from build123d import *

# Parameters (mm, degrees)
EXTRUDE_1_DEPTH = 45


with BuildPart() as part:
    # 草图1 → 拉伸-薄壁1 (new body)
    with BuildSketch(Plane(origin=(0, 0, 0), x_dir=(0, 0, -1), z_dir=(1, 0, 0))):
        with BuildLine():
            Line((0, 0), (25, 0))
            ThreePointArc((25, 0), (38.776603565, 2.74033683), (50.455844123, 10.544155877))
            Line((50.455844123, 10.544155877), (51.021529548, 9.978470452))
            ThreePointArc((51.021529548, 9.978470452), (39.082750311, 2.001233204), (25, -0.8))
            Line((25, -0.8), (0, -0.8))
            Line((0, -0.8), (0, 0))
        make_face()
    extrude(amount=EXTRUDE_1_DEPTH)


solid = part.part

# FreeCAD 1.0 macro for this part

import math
import FreeCAD as App
import Part
import Sketcher
from FreeCAD import Vector
Q = App.Units.Quantity

doc = App.newDocument("Part")
body = doc.addObject("PartDesign::Body", "Body")

sketch1 = body.newObject("Sketcher::SketchObject", "Sketch")
sketch1.AttachmentSupport = (doc.getObject("YZ_Plane"), [""])
sketch1.MapMode = "FlatFace"
sketch1.addGeometry([
    Part.LineSegment(Vector(0, -25, 0), Vector(0, 0, 0)),
    Part.LineSegment(Vector(0, 0, 0), Vector(-0.8, 0, 0)),
    Part.LineSegment(Vector(-0.8, 0, 0), Vector(-0.8, -25, 0)),
    Part.ArcOfCircle(Part.Circle(Vector(36, -25, 0), Vector(0, 0, 1), 36.8), math.radians(-180), math.radians(-135)),
    Part.LineSegment(Vector(10, -51, 0), Vector(10.5, -50.5, 0)),
    Part.ArcOfCircle(Part.Circle(Vector(36, -25, 0), Vector(0, 0, 1), 36), math.radians(-180), math.radians(-135)),
], False)
sketch1.addConstraint([
    Sketcher.Constraint("Coincident", 0, 2, 1, 1),
    Sketcher.Constraint("Coincident", 1, 2, 2, 1),
    Sketcher.Constraint("Tangent", 2, 2, 3, 1),
    Sketcher.Constraint("Coincident", 3, 2, 4, 1),
    Sketcher.Constraint("Coincident", 4, 2, 5, 2),
    Sketcher.Constraint("Tangent", 5, 1, 0, 1),
    Sketcher.Constraint("Vertical", 0),
    Sketcher.Constraint("Horizontal", 1),
    Sketcher.Constraint("Vertical", 2),
    Sketcher.Constraint("Coincident", 0, 2, -1, 1),
    Sketcher.Constraint("Coincident", 5, 3, 3, 3),
    Sketcher.Constraint("Radius", 5, 36.0),
    Sketcher.Constraint("Radius", 3, 36.8),
    Sketcher.Constraint("DistanceY", 0, 1, 0, 2, 25.0),
    Sketcher.Constraint("Angle", 4, Q("45 deg")),
    Sketcher.Constraint("DistanceX", -1, 1, 3, 2, 9.97847),
])
pad1 = body.newObject("PartDesign::Pad", "Pad")
pad1.Profile = sketch1
pad1.Length = 45

doc.recompute()
